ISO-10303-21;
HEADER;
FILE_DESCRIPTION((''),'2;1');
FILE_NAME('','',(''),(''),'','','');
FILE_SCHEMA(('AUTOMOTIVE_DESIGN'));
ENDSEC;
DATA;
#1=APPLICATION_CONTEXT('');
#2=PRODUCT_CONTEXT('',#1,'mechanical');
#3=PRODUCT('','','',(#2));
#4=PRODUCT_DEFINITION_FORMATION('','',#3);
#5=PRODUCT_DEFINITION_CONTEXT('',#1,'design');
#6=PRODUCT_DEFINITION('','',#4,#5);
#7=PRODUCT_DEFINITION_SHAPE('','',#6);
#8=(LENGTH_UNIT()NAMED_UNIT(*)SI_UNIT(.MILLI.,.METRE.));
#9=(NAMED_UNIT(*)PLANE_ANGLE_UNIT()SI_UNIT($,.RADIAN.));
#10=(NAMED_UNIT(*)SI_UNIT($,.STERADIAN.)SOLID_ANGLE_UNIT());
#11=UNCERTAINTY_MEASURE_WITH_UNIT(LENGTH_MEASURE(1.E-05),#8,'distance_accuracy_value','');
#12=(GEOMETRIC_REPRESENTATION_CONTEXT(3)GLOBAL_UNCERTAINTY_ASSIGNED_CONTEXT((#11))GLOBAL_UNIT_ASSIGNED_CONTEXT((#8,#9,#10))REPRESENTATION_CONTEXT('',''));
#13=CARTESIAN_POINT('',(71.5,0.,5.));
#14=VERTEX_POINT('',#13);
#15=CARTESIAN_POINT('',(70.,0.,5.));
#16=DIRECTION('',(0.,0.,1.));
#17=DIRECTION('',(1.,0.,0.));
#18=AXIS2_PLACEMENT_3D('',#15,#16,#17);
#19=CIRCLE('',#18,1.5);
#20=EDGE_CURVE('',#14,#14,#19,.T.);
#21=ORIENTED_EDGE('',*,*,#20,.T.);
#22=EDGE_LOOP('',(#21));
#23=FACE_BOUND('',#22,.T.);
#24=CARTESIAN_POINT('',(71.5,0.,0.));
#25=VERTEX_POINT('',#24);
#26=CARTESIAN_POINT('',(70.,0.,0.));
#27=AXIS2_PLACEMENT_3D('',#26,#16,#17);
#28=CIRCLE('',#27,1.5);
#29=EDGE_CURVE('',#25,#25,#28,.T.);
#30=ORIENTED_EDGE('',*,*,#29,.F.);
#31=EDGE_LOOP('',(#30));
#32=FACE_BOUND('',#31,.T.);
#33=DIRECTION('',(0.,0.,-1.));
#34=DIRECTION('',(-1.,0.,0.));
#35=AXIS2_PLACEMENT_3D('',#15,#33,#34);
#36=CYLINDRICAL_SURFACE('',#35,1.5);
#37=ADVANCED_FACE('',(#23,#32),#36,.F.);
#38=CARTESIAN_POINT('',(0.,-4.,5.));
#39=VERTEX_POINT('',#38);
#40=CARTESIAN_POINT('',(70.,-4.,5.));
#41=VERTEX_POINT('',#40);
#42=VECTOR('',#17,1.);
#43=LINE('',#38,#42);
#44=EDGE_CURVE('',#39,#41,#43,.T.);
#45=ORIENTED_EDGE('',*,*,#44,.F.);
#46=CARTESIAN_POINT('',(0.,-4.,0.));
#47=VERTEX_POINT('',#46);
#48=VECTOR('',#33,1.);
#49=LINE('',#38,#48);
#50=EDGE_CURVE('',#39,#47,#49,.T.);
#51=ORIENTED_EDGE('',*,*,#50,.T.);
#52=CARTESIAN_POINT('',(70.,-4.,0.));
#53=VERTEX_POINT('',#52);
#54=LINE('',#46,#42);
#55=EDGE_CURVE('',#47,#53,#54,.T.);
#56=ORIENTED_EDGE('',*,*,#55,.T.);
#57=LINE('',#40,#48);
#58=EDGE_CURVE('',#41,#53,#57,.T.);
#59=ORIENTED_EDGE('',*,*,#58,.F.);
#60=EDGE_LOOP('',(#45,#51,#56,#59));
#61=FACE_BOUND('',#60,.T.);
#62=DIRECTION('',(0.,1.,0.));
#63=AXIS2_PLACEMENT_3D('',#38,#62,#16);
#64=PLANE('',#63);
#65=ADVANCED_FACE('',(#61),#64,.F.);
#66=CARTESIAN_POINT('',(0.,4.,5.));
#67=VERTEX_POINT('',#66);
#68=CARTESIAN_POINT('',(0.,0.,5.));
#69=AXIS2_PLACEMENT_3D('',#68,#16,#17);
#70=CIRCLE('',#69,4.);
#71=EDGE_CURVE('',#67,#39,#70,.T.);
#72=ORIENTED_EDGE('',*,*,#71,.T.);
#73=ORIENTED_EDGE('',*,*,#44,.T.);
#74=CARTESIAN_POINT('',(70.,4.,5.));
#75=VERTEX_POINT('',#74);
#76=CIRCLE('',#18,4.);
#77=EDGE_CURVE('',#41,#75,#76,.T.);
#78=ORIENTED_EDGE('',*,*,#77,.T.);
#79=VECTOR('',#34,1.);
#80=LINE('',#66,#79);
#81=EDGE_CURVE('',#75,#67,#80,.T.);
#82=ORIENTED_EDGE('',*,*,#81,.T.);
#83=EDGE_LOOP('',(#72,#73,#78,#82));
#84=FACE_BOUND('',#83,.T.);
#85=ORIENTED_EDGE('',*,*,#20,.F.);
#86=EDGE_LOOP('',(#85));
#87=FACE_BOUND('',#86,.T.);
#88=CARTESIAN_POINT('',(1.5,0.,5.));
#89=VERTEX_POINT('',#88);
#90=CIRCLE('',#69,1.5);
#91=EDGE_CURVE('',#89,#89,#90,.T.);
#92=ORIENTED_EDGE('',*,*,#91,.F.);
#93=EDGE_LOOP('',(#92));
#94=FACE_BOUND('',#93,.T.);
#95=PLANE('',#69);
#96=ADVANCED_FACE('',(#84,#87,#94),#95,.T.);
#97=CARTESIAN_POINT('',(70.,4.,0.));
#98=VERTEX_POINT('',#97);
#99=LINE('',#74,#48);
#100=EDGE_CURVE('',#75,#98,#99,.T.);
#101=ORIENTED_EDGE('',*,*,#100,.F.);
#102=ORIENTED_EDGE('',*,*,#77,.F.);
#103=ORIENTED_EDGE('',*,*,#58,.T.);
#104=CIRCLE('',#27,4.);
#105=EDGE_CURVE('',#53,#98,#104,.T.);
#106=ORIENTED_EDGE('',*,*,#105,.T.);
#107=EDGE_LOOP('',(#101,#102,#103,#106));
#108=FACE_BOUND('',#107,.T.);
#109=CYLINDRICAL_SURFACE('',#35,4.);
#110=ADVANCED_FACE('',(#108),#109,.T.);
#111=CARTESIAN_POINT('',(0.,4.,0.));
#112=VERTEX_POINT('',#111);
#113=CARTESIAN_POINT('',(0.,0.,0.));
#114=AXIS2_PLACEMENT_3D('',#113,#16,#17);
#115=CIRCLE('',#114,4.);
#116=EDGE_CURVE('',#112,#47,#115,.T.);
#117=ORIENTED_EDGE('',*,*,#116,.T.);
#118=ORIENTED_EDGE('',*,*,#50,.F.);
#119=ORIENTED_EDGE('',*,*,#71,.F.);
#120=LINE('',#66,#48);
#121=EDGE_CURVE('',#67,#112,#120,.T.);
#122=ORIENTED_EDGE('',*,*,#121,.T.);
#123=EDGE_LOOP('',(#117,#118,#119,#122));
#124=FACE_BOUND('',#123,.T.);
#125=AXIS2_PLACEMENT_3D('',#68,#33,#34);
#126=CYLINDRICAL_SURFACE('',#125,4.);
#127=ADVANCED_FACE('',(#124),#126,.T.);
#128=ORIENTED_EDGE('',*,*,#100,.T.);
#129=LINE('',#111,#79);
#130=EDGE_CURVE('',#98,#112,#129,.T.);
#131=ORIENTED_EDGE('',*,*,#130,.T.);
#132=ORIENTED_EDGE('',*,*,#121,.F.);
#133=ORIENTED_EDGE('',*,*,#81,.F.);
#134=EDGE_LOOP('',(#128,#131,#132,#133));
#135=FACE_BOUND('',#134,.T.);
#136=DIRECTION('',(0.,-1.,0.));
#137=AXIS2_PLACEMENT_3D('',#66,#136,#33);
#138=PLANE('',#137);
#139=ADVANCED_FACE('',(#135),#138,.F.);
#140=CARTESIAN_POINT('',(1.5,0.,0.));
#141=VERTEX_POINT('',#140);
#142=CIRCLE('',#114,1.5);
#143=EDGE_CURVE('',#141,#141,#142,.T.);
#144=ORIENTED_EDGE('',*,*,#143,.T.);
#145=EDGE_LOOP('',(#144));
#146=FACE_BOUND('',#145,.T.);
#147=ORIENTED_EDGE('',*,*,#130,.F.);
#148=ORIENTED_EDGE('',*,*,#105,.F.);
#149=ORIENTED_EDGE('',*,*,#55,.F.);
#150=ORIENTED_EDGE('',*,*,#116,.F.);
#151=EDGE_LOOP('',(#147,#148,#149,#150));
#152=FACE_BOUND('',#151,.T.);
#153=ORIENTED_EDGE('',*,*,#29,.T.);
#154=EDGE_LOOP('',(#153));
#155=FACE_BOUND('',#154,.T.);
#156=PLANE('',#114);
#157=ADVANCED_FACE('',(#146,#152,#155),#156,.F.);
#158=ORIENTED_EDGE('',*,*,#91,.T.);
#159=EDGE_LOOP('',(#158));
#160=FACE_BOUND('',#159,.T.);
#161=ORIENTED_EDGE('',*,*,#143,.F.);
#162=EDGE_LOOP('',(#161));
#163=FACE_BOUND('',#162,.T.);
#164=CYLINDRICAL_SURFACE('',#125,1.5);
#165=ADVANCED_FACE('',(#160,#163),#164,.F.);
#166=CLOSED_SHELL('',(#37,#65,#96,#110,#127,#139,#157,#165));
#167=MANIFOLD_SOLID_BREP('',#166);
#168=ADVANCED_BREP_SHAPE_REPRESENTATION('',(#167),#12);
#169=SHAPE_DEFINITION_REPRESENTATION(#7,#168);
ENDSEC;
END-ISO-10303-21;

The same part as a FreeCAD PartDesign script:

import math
import FreeCAD as App
import Part
import Sketcher

doc = App.newDocument("Part")
body = doc.addObject("PartDesign::Body", "Body")

sketch1 = doc.addObject("Sketcher::SketchObject", "Sketch")
body.addObject(sketch1)
sketch1.AttachmentSupport = (doc.XY_Plane, [""])
sketch1.MapMode = "FlatFace"
sketch1.addGeometry([
    Part.LineSegment(App.Vector(70, 4, 0), App.Vector(0, 4, 0)),
    Part.ArcOfCircle(Part.Circle(App.Vector(0, 0, 0), App.Vector(0, 0, 1), 4), math.radians(90), math.radians(270)),
    Part.LineSegment(App.Vector(0, -4, 0), App.Vector(70, -4, 0)),
    Part.ArcOfCircle(Part.Circle(App.Vector(70, 0, 0), App.Vector(0, 0, 1), 4), math.radians(-90), math.radians(90)),
    Part.Circle(App.Vector(70, 0, 0), App.Vector(0, 0, 1), 1.5),
    Part.Circle(App.Vector(0, 0, 0), App.Vector(0, 0, 1), 1.5),
], False)
sketch1.addConstraint([
    Sketcher.Constraint("Tangent", 0, 2, 1, 1),
    Sketcher.Constraint("Tangent", 1, 2, 2, 1),
    Sketcher.Constraint("Tangent", 2, 2, 3, 1),
    Sketcher.Constraint("Tangent", 3, 2, 0, 1),
    Sketcher.Constraint("Horizontal", 0),
    Sketcher.Constraint("Horizontal", 2),
    Sketcher.Constraint("Coincident", 1, 3, -1, 1),
    Sketcher.Constraint("Coincident", 5, 3, -1, 1),
    Sketcher.Constraint("Coincident", 4, 3, 3, 3),
    Sketcher.Constraint("Equal", 4, 5),
    Sketcher.Constraint("Diameter", 4, 3.0),
    Sketcher.Constraint("Radius", 1, 4.0),
    Sketcher.Constraint("DistanceX", 0, 2, 0, 1, 70.0),
])
pad1 = doc.addObject("PartDesign::Pad", "Pad")
body.addObject(pad1)
pad1.Profile = sketch1
pad1.Length = 5

doc.recompute()
